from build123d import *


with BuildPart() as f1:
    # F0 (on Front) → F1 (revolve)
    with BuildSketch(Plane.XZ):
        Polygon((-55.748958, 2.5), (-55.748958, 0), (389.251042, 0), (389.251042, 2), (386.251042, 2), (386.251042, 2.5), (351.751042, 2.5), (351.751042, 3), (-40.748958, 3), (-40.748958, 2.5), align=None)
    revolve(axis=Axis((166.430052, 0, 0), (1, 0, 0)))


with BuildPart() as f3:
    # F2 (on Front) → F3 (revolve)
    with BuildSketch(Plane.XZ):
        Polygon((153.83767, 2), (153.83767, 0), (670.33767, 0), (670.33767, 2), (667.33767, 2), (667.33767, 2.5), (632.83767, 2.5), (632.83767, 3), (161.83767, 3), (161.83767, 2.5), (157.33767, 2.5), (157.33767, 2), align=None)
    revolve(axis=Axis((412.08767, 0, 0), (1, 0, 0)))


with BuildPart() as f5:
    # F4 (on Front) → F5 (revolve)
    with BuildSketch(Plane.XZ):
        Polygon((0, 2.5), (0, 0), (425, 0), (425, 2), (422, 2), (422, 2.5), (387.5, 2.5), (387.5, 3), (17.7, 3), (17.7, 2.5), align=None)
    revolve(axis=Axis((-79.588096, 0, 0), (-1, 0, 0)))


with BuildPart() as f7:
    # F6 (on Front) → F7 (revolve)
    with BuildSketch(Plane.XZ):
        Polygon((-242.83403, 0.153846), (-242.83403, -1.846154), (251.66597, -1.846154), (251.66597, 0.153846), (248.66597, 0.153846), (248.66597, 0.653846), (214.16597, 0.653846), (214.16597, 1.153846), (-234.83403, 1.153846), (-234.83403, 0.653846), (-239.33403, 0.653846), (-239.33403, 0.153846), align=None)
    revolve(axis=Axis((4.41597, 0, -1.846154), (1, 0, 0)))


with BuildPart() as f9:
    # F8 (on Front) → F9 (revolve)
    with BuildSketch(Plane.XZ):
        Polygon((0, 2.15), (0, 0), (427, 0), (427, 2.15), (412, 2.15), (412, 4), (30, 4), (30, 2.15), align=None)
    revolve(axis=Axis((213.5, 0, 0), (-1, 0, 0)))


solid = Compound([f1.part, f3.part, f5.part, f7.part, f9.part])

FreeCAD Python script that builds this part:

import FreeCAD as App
import Part
import Sketcher

V = App.Vector
Q = App.Units.Quantity


def add_polygon(sketch, points):
    """Adds a closed chain of lines whose ends are joined by coincident constraints."""
    first, n = sketch.GeometryCount, len(points)
    for a, b in zip(points, points[1:] + points[:1]):
        sketch.addGeometry(Part.LineSegment(App.Vector(*a, 0), App.Vector(*b, 0)), False)
    for i in range(n):
        sketch.addConstraint(Sketcher.Constraint("Coincident", first + i, 2, first + (i + 1) % n, 1))

doc = App.newDocument("Part")
body = doc.addObject("PartDesign::Body", "Body")

# Sketch on XZ plane
sketch1 = body.newObject("Sketcher::SketchObject", "Sketch")
sketch1.AttachmentSupport = (doc.getObject("XZ_Plane"), [""])
sketch1.MapMode = "FlatFace"
add_polygon(sketch1, [(-55.7, 2.5), (-55.7, 0), (389.3, 0), (389.3, 2), (386.3, 2), (386.3, 2.5), (351.8, 2.5), (351.8, 3), (-40.7, 3), (-40.7, 2.5)])  # lines 0-9
sketch1.addConstraint([
    Sketcher.Constraint("Vertical", 0),
    Sketcher.Constraint("Horizontal", 1),
    Sketcher.Constraint("Vertical", 2),
    Sketcher.Constraint("Horizontal", 3),
    Sketcher.Constraint("Vertical", 4),
    Sketcher.Constraint("Horizontal", 5),
    Sketcher.Constraint("Vertical", 6),
    Sketcher.Constraint("Horizontal", 7),
    Sketcher.Constraint("Vertical", 8),
    Sketcher.Constraint("Horizontal", 9),
    Sketcher.Constraint("PointOnObject", 0, 2, -1),
    Sketcher.Constraint("Horizontal", 5, 2, 8, 2),
    Sketcher.Constraint("Equal", 4, 6),
    Sketcher.Constraint("DistanceX", 1, 1, 1, 2, Q("445 mm")),
    Sketcher.Constraint("DistanceX", 3, 2, 3, 1, Q("3 mm")),
    Sketcher.Constraint("DistanceX", 9, 2, 9, 1, Q("15 mm")),
    Sketcher.Constraint("DistanceY", 2, 1, 2, 2, Q("2 mm")),
    Sketcher.Constraint("DistanceX", 5, 2, 5, 1, Q("34.5 mm")),
    Sketcher.Constraint("DistanceY", 0, 2, 0, 1, Q("2.5 mm")),
    Sketcher.Constraint("DistanceX", 0, 2, -1, 1, Q("55.748958 mm")),
])
revolution = body.newObject("PartDesign::Revolution", "Revolution")
revolution.Profile = sketch1
revolution.ReferenceAxis = (sketch1, ["H_Axis"])
revolution.Angle = 360
body2 = doc.addObject("PartDesign::Body", "Body001")

# Sketch on XZ plane
sketch2 = body2.newObject("Sketcher::SketchObject", "Sketch001")
sketch2.AttachmentSupport = (doc.getObject("XZ_Plane001"), [""])
sketch2.MapMode = "FlatFace"
add_polygon(sketch2, [(153.8, 2), (153.8, 0), (670.3, 0), (670.3, 2), (667.3, 2), (667.3, 2.5), (632.8, 2.5), (632.8, 3), (161.8, 3), (161.8, 2.5), (157.3, 2.5), (157.3, 2)])  # lines 0-11
sketch2.addConstraint([
    Sketcher.Constraint("Vertical", 0),
    Sketcher.Constraint("Horizontal", 1),
    Sketcher.Constraint("Vertical", 2),
    Sketcher.Constraint("Horizontal", 3),
    Sketcher.Constraint("Vertical", 4),
    Sketcher.Constraint("Horizontal", 5),
    Sketcher.Constraint("Vertical", 6),
    Sketcher.Constraint("Horizontal", 7),
    Sketcher.Constraint("Vertical", 8),
    Sketcher.Constraint("Horizontal", 9),
    Sketcher.Constraint("Vertical", 10),
    Sketcher.Constraint("Horizontal", 11),
    Sketcher.Constraint("PointOnObject", 0, 2, -1),
    Sketcher.Constraint("Horizontal", 5, 2, 8, 2),
    Sketcher.Constraint("Horizontal", 3, 2, 10, 2),
    Sketcher.Constraint("Equal", 4, 6),
    Sketcher.Constraint("DistanceX", 3, 2, 3, 1, Q("3 mm")),
    Sketcher.Constraint("DistanceX", 7, 2, 7, 1, Q("471 mm")),
    Sketcher.Constraint("DistanceY", 0, 2, 0, 1, Q("2 mm")),
    Sketcher.Constraint("DistanceX", 1, 1, 1, 2, Q("516.5 mm")),
    Sketcher.Constraint("DistanceX", 5, 2, 5, 1, Q("34.5 mm")),
    Sketcher.Constraint("DistanceX", 9, 2, 9, 1, Q("4.5 mm")),
    Sketcher.Constraint("DistanceY", 4, 1, 4, 2, Q("0.5 mm")),
    Sketcher.Constraint("DistanceX", -1, 1, 0, 2, Q("153.83767 mm")),
])
revolution2 = body2.newObject("PartDesign::Revolution", "Revolution001")
revolution2.Profile = sketch2
revolution2.ReferenceAxis = (sketch2, ["H_Axis"])
revolution2.Angle = 360
body3 = doc.addObject("PartDesign::Body", "Body002")

# Sketch on XZ plane
sketch3 = body3.newObject("Sketcher::SketchObject", "Sketch002")
sketch3.AttachmentSupport = (doc.getObject("XZ_Plane002"), [""])
sketch3.MapMode = "FlatFace"
add_polygon(sketch3, [(0, 2.5), (0, 0), (425, 0), (425, 2), (422, 2), (422, 2.5), (387.5, 2.5), (387.5, 3), (17.7, 3), (17.7, 2.5)])  # lines 0-9
sketch3.addConstraint([
    Sketcher.Constraint("Vertical", 0),
    Sketcher.Constraint("Horizontal", 1),
    Sketcher.Constraint("Vertical", 2),
    Sketcher.Constraint("Horizontal", 3),
    Sketcher.Constraint("Vertical", 4),
    Sketcher.Constraint("Horizontal", 5),
    Sketcher.Constraint("Vertical", 6),
    Sketcher.Constraint("Horizontal", 7),
    Sketcher.Constraint("Vertical", 8),
    Sketcher.Constraint("Horizontal", 9),
    Sketcher.Constraint("Coincident", 0, 2, -1, 1),
    Sketcher.Constraint("Horizontal", 5, 2, 8, 2),
    Sketcher.Constraint("Equal", 4, 6),
    Sketcher.Constraint("DistanceX", 1, 1, 1, 2, Q("425 mm")),
    Sketcher.Constraint("DistanceX", 3, 2, 3, 1, Q("3 mm")),
    Sketcher.Constraint("DistanceY", 2, 1, 2, 2, Q("2 mm")),
    Sketcher.Constraint("DistanceX", 5, 2, 5, 1, Q("34.5 mm")),
    Sketcher.Constraint("DistanceX", 7, 2, 7, 1, Q("369.8 mm")),
    Sketcher.Constraint("DistanceY", 0, 2, 0, 1, Q("2.5 mm")),
])
revolution3 = body3.newObject("PartDesign::Revolution", "Revolution002")
revolution3.Profile = sketch3
revolution3.ReferenceAxis = (sketch3, ["H_Axis"])
revolution3.Angle = 360
body4 = doc.addObject("PartDesign::Body", "Body003")

# Sketch on XZ plane
sketch4 = body4.newObject("Sketcher::SketchObject", "Sketch003")
sketch4.AttachmentSupport = (doc.getObject("XZ_Plane003"), [""])
sketch4.MapMode = "FlatFace"
add_polygon(sketch4, [(-242.83, 0.15), (-242.83, -1.85), (251.67, -1.85), (251.67, 0.15), (248.67, 0.15), (248.67, 0.65), (214.17, 0.65), (214.17, 1.15), (-234.83, 1.15), (-234.83, 0.65), (-239.33, 0.65), (-239.33, 0.15)])  # lines 0-11
sketch4.addGeometry(Part.LineSegment(V(-242.83, -1.85, 0), V(251.67, -1.85, 0)), True)  # axis
sketch4.addConstraint([
    Sketcher.Constraint("Vertical", 0),
    Sketcher.Constraint("Horizontal", 1),
    Sketcher.Constraint("Vertical", 2),
    Sketcher.Constraint("Horizontal", 3),
    Sketcher.Constraint("Vertical", 4),
    Sketcher.Constraint("Horizontal", 5),
    Sketcher.Constraint("Vertical", 6),
    Sketcher.Constraint("Horizontal", 7),
    Sketcher.Constraint("Vertical", 8),
    Sketcher.Constraint("Horizontal", 9),
    Sketcher.Constraint("Vertical", 10),
    Sketcher.Constraint("Horizontal", 11),
    Sketcher.Constraint("Horizontal", 12),
    Sketcher.Constraint("Coincident", 12, 1, 0, 2),
    Sketcher.Constraint("Horizontal", 5, 2, 8, 2),
    Sketcher.Constraint("Horizontal", 3, 2, 10, 2),
    Sketcher.Constraint("Vertical", 2, 2, 12, 2),
    Sketcher.Constraint("Equal", 4, 6),
    Sketcher.Constraint("DistanceX", 3, 2, 3, 1, Q("3 mm")),
    Sketcher.Constraint("DistanceX", 7, 2, 7, 1, Q("449 mm")),
    Sketcher.Constraint("DistanceY", 0, 2, 0, 1, Q("2 mm")),
    Sketcher.Constraint("DistanceX", 1, 1, 1, 2, Q("494.5 mm")),
    Sketcher.Constraint("DistanceX", 5, 2, 5, 1, Q("34.5 mm")),
    Sketcher.Constraint("DistanceX", 9, 2, 9, 1, Q("4.5 mm")),
    Sketcher.Constraint("DistanceY", 4, 1, 4, 2, Q("0.5 mm")),
    Sketcher.Constraint("DistanceX", 0, 2, -1, 1, Q("242.83403 mm")),
    Sketcher.Constraint("DistanceY", 0, 2, -1, 1, Q("1.846154 mm")),
])
revolution4 = body4.newObject("PartDesign::Revolution", "Revolution003")
revolution4.Profile = sketch4
revolution4.ReferenceAxis = (sketch4, ["Axis0"])
revolution4.Angle = 360
body5 = doc.addObject("PartDesign::Body", "Body004")

# Sketch on XZ plane
sketch5 = body5.newObject("Sketcher::SketchObject", "Sketch004")
sketch5.AttachmentSupport = (doc.getObject("XZ_Plane004"), [""])
sketch5.MapMode = "FlatFace"
add_polygon(sketch5, [(0, 2.1), (0, 0), (427, 0), (427, 2.1), (412, 2.1), (412, 4), (30, 4), (30, 2.1)])  # lines 0-7
sketch5.addConstraint([
    Sketcher.Constraint("Vertical", 0),
    Sketcher.Constraint("Horizontal", 1),
    Sketcher.Constraint("Vertical", 2),
    Sketcher.Constraint("Horizontal", 3),
    Sketcher.Constraint("Vertical", 4),
    Sketcher.Constraint("Horizontal", 5),
    Sketcher.Constraint("Vertical", 6),
    Sketcher.Constraint("Horizontal", 7),
    Sketcher.Constraint("Coincident", 0, 2, -1, 1),
    Sketcher.Constraint("Horizontal", 3, 2, 6, 2),
    Sketcher.Constraint("DistanceX", 1, 1, 1, 2, Q("427 mm")),
    Sketcher.Constraint("DistanceX", 3, 2, 3, 1, Q("15 mm")),
    Sketcher.Constraint("DistanceX", 5, 2, 5, 1, Q("382 mm")),
    Sketcher.Constraint("DistanceY", -1, 1, 4, 2, Q("4 mm")),
    Sketcher.Constraint("DistanceY", 0, 2, 0, 1, Q("2.15 mm")),
])
revolution5 = body5.newObject("PartDesign::Revolution", "Revolution004")
revolution5.Profile = sketch5
revolution5.ReferenceAxis = (sketch5, ["H_Axis"])
revolution5.Angle = 360

doc.recompute()
